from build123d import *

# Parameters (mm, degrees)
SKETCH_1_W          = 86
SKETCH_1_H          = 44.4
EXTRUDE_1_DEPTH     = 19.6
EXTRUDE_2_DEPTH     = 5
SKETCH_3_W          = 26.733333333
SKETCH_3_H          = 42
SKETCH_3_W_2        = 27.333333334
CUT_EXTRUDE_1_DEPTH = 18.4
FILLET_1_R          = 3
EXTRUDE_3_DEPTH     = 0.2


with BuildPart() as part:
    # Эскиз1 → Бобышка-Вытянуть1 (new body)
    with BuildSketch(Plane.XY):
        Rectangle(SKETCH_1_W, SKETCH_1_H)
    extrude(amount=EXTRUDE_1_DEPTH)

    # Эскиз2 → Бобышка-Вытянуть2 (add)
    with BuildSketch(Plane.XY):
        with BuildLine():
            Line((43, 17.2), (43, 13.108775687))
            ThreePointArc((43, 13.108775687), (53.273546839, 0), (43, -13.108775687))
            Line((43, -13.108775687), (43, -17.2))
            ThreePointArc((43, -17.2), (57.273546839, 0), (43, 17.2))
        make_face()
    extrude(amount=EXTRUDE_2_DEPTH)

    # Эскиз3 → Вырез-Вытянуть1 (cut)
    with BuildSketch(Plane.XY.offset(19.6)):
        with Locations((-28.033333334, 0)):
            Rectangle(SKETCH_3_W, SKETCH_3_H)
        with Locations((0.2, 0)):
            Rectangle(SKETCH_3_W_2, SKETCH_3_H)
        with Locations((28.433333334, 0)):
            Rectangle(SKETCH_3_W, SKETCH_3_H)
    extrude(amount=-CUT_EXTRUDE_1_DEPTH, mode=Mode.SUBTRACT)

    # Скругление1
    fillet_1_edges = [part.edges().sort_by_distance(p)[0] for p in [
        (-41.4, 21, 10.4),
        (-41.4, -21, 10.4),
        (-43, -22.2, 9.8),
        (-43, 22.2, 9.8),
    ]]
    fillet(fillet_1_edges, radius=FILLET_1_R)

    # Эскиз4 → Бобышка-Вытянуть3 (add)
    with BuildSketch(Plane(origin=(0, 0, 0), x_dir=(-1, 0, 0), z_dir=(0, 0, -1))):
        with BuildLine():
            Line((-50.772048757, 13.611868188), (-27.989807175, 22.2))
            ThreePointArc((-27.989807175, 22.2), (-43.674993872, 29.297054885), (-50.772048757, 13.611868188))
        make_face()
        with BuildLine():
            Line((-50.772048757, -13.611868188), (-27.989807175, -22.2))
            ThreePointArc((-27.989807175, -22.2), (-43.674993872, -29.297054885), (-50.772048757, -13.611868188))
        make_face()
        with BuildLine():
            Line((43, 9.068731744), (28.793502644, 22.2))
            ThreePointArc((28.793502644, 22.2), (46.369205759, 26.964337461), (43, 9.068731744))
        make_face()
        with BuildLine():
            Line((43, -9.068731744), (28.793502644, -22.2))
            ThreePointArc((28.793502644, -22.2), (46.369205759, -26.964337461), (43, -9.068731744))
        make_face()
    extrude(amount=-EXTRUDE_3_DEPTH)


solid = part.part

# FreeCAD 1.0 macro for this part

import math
import FreeCAD as App
import Part
import Sketcher

V = App.Vector
Q = App.Units.Quantity


def edges_at(feature, points):
    """Names of the edges that pass closest to the given points."""
    edges = feature.Shape.Edges
    near = lambda p: min(range(len(edges)), key=lambda i: edges[i].distToShape(Part.Vertex(*p))[0])
    return sorted({f"Edge{near(p) + 1}" for p in points})


def add_polygon(sketch, points):
    """Adds a closed chain of lines whose ends are joined by coincident constraints."""
    first, n = sketch.GeometryCount, len(points)
    for a, b in zip(points, points[1:] + points[:1]):
        sketch.addGeometry(Part.LineSegment(App.Vector(*a, 0), App.Vector(*b, 0)), False)
    for i in range(n):
        sketch.addConstraint(Sketcher.Constraint("Coincident", first + i, 2, first + (i + 1) % n, 1))

doc = App.newDocument("Part")
body = doc.addObject("PartDesign::Body", "Body")

sketch1 = body.newObject("Sketcher::SketchObject", "Sketch")
sketch1.AttachmentSupport = (doc.getObject("XY_Plane"), [""])
sketch1.MapMode = "FlatFace"
add_polygon(sketch1, [(-43, 22.2), (-43, -22.2), (43, -22.2), (43, 22.2)])
sketch1.addConstraint(Sketcher.Constraint("Vertical", 0))
sketch1.addConstraint(Sketcher.Constraint("Horizontal", 1))
sketch1.addConstraint(Sketcher.Constraint("Vertical", 2))
sketch1.addConstraint(Sketcher.Constraint("Horizontal", 3))
sketch1.addConstraint(Sketcher.Constraint("Symmetric", 0, 2, 2, 2, -1, 1))
sketch1.addConstraint(Sketcher.Constraint("DistanceX", 1, 1, 1, 2, Q("86 mm")))
sketch1.addConstraint(Sketcher.Constraint("DistanceY", 0, 2, 0, 1, Q("44.4 mm")))
pad1 = body.newObject("PartDesign::Pad", "Pad")
pad1.Profile = sketch1
pad1.Length = 19.6

sketch2 = body.newObject("Sketcher::SketchObject", "Sketch001")
sketch2.AttachmentSupport = (doc.getObject("XY_Plane"), [""])
sketch2.MapMode = "FlatFace"
sketch2.addGeometry(Part.LineSegment(V(43, 17.2, 0), V(43, 13.108776, 0)), False)
sketch2.addGeometry(Part.ArcOfCircle(Part.Circle(V(39.773547, 0, 0), V(0, 0, 1), 13.5), math.radians(-76.172678), math.radians(76.172678)), False)
sketch2.addGeometry(Part.LineSegment(V(43, -13.108776, 0), V(43, -17.2, 0)), False)
sketch2.addGeometry(Part.ArcOfCircle(Part.Circle(V(39.773547, 0, 0), V(0, 0, 1), 17.5), math.radians(-79.375668), math.radians(79.375668)), False)
sketch2.addConstraint(Sketcher.Constraint("Coincident", 0, 2, 1, 2))
sketch2.addConstraint(Sketcher.Constraint("Coincident", 1, 1, 2, 1))
sketch2.addConstraint(Sketcher.Constraint("Coincident", 2, 2, 3, 1))
sketch2.addConstraint(Sketcher.Constraint("Coincident", 3, 2, 0, 1))
sketch2.addConstraint(Sketcher.Constraint("Vertical", 0))
sketch2.addConstraint(Sketcher.Constraint("Vertical", 2))
sketch2.addConstraint(Sketcher.Constraint("Coincident", 3, 3, 1, 3))
sketch2.addConstraint(Sketcher.Constraint("Symmetric", 0, 2, 1, 1, -1))
sketch2.addConstraint(Sketcher.Constraint("Radius", 1, Q("13.5 mm")))
sketch2.addConstraint(Sketcher.Constraint("Radius", 3, Q("17.5 mm")))
sketch2.addConstraint(Sketcher.Constraint("DistanceX", -1, 1, 0, 2, Q("43 mm")))
sketch2.addConstraint(Sketcher.Constraint("DistanceY", 2, 2, -1, 1, Q("17.2 mm")))
pad2 = body.newObject("PartDesign::Pad", "Pad001")
pad2.Profile = sketch2
pad2.Length = 5

sketch3 = body.newObject("Sketcher::SketchObject", "Sketch002")
sketch3.AttachmentSupport = (doc.getObject("XY_Plane"), [""])
sketch3.MapMode = "FlatFace"
sketch3.AttachmentOffset = App.Placement(V(0, 0, 19.6), App.Rotation())
add_polygon(sketch3, [(-41.4, 21), (-41.4, -21), (-14.666667, -21), (-14.666667, 21)])
add_polygon(sketch3, [(-13.466667, 21), (-13.466667, -21), (13.866667, -21), (13.866667, 21)])
add_polygon(sketch3, [(15.066667, 21), (15.066667, -21), (41.8, -21), (41.8, 21)])
sketch3.addConstraint(Sketcher.Constraint("Vertical", 0))
sketch3.addConstraint(Sketcher.Constraint("Horizontal", 1))
sketch3.addConstraint(Sketcher.Constraint("Vertical", 2))
sketch3.addConstraint(Sketcher.Constraint("Horizontal", 3))
sketch3.addConstraint(Sketcher.Constraint("Vertical", 4))
sketch3.addConstraint(Sketcher.Constraint("Horizontal", 5))
sketch3.addConstraint(Sketcher.Constraint("Vertical", 6))
sketch3.addConstraint(Sketcher.Constraint("Horizontal", 7))
sketch3.addConstraint(Sketcher.Constraint("Vertical", 8))
sketch3.addConstraint(Sketcher.Constraint("Horizontal", 9))
sketch3.addConstraint(Sketcher.Constraint("Vertical", 10))
sketch3.addConstraint(Sketcher.Constraint("Horizontal", 11))
sketch3.addConstraint(Sketcher.Constraint("Horizontal", 1, 2, 4, 2))
sketch3.addConstraint(Sketcher.Constraint("Horizontal", 3, 2, 6, 2))
sketch3.addConstraint(Sketcher.Constraint("Horizontal", 5, 2, 8, 2))
sketch3.addConstraint(Sketcher.Constraint("Horizontal", 7, 2, 10, 2))
sketch3.addConstraint(Sketcher.Constraint("Equal", 3, 9))
sketch3.addConstraint(Sketcher.Constraint("DistanceY", 0, 2, 0, 1, Q("42 mm")))
sketch3.addConstraint(Sketcher.Constraint("DistanceY", 0, 2, -1, 1, Q("21 mm")))
sketch3.addConstraint(Sketcher.Constraint("DistanceX", 0, 2, -1, 1, Q("41.4 mm")))
sketch3.addConstraint(Sketcher.Constraint("DistanceX", -1, 1, 9, 2, Q("41.8 mm")))
sketch3.addConstraint(Sketcher.Constraint("DistanceX", 1, 2, 4, 2, Q("1.2 mm")))
sketch3.addConstraint(Sketcher.Constraint("DistanceX", 5, 2, 8, 2, Q("1.2 mm")))
sketch3.addConstraint(Sketcher.Constraint("DistanceX", 1, 1, 1, 2, Q("26.733333 mm")))
pocket1 = body.newObject("PartDesign::Pocket", "Pocket")
pocket1.Profile = sketch3
pocket1.Length = 18.4
doc.recompute()

fillet = body.newObject("PartDesign::Fillet", "Fillet")
fillet.Base = (pocket1, edges_at(pocket1, [
    (-41.4, 21, 10.4),
    (-41.4, -21, 10.4),
    (-43, -22.2, 9.8),
    (-43, 22.2, 9.8),
]))
fillet.Radius = 3

sketch4 = body.newObject("Sketcher::SketchObject", "Sketch003")
sketch4.AttachmentSupport = (doc.getObject("XY_Plane"), [""])
sketch4.MapMode = "FlatFace"
sketch4.addGeometry(Part.LineSegment(V(50.772049, 13.611868, 0), V(27.989807, 22.2, 0)), False)
sketch4.addGeometry(Part.ArcOfCircle(Part.Circle(V(39.380928, 17.905934, 0), V(0, 0, 1), 12.173604), math.radians(-20.65474), math.radians(159.34526)), False)
sketch4.addGeometry(Part.LineSegment(V(27.989807, -22.2, 0), V(50.772049, -13.611868, 0)), False)
sketch4.addGeometry(Part.ArcOfCircle(Part.Circle(V(39.380928, -17.905934, 0), V(0, 0, 1), 12.173604), math.radians(-159.34526), math.radians(20.65474)), False)
sketch4.addGeometry(Part.LineSegment(V(-28.793503, 22.2, 0), V(-43, 9.068732, 0)), False)
sketch4.addGeometry(Part.ArcOfCircle(Part.Circle(V(-39.074839, 19.072685, 0), V(0, 0, 1), 10.74644), math.radians(16.918397), math.radians(248.576893)), False)
sketch4.addGeometry(Part.LineSegment(V(-43, -9.068732, 0), V(-28.793503, -22.2, 0)), False)
sketch4.addGeometry(Part.ArcOfCircle(Part.Circle(V(-39.074839, -19.072685, 0), V(0, 0, 1), 10.74644), math.radians(111.423107), math.radians(343.081603)), False)
sketch4.addConstraint(Sketcher.Constraint("Coincident", 0, 1, 1, 1))
sketch4.addConstraint(Sketcher.Constraint("Coincident", 1, 2, 0, 2))
sketch4.addConstraint(Sketcher.Constraint("Coincident", 2, 1, 3, 1))
sketch4.addConstraint(Sketcher.Constraint("Coincident", 3, 2, 2, 2))
sketch4.addConstraint(Sketcher.Constraint("Coincident", 4, 1, 5, 1))
sketch4.addConstraint(Sketcher.Constraint("Coincident", 5, 2, 4, 2))
sketch4.addConstraint(Sketcher.Constraint("Coincident", 6, 1, 7, 1))
sketch4.addConstraint(Sketcher.Constraint("Coincident", 7, 2, 6, 2))
sketch4.addConstraint(Sketcher.Constraint("Equal", 1, 3))
sketch4.addConstraint(Sketcher.Constraint("Equal", 5, 7))
sketch4.addConstraint(Sketcher.Constraint("Symmetric", 1, 3, 3, 3, -1))
sketch4.addConstraint(Sketcher.Constraint("Symmetric", 5, 3, 7, 3, -1))
sketch4.addConstraint(Sketcher.Constraint("Horizontal", 1, 2, 4, 1))
sketch4.addConstraint(Sketcher.Constraint("Horizontal", 2, 1, 7, 2))
sketch4.addConstraint(Sketcher.Constraint("Vertical", 1, 2, 2, 1))
sketch4.addConstraint(Sketcher.Constraint("Vertical", 0, 1, 3, 2))
sketch4.addConstraint(Sketcher.Constraint("Vertical", 5, 2, 6, 1))
sketch4.addConstraint(Sketcher.Constraint("DistanceX", 5, 2, -1, 1, Q("43 mm")))
sketch4.addConstraint(Sketcher.Constraint("DistanceY", -1, 1, 1, 2, Q("22.2 mm")))
sketch4.addConstraint(Sketcher.Constraint("Radius", 5, Q("10.74644 mm")))
sketch4.addConstraint(Sketcher.Constraint("Radius", 1, Q("12.173604 mm")))
sketch4.addConstraint(Sketcher.Constraint("DistanceX", 5, 3, -1, 1, Q("39.074839 mm")))
sketch4.addConstraint(Sketcher.Constraint("DistanceX", -1, 1, 0, 1, Q("50.772049 mm")))
sketch4.addConstraint(Sketcher.Constraint("DistanceY", -1, 1, 0, 1, Q("13.611868 mm")))
sketch4.addConstraint(Sketcher.Constraint("DistanceY", -1, 1, 5, 2, Q("9.068732 mm")))
sketch4.addConstraint(Sketcher.Constraint("DistanceY", 3, 3, 1, 3, Q("35.811868 mm")))
pad3 = body.newObject("PartDesign::Pad", "Pad002")
pad3.Profile = sketch4
pad3.Length = 0.2

doc.recompute()
